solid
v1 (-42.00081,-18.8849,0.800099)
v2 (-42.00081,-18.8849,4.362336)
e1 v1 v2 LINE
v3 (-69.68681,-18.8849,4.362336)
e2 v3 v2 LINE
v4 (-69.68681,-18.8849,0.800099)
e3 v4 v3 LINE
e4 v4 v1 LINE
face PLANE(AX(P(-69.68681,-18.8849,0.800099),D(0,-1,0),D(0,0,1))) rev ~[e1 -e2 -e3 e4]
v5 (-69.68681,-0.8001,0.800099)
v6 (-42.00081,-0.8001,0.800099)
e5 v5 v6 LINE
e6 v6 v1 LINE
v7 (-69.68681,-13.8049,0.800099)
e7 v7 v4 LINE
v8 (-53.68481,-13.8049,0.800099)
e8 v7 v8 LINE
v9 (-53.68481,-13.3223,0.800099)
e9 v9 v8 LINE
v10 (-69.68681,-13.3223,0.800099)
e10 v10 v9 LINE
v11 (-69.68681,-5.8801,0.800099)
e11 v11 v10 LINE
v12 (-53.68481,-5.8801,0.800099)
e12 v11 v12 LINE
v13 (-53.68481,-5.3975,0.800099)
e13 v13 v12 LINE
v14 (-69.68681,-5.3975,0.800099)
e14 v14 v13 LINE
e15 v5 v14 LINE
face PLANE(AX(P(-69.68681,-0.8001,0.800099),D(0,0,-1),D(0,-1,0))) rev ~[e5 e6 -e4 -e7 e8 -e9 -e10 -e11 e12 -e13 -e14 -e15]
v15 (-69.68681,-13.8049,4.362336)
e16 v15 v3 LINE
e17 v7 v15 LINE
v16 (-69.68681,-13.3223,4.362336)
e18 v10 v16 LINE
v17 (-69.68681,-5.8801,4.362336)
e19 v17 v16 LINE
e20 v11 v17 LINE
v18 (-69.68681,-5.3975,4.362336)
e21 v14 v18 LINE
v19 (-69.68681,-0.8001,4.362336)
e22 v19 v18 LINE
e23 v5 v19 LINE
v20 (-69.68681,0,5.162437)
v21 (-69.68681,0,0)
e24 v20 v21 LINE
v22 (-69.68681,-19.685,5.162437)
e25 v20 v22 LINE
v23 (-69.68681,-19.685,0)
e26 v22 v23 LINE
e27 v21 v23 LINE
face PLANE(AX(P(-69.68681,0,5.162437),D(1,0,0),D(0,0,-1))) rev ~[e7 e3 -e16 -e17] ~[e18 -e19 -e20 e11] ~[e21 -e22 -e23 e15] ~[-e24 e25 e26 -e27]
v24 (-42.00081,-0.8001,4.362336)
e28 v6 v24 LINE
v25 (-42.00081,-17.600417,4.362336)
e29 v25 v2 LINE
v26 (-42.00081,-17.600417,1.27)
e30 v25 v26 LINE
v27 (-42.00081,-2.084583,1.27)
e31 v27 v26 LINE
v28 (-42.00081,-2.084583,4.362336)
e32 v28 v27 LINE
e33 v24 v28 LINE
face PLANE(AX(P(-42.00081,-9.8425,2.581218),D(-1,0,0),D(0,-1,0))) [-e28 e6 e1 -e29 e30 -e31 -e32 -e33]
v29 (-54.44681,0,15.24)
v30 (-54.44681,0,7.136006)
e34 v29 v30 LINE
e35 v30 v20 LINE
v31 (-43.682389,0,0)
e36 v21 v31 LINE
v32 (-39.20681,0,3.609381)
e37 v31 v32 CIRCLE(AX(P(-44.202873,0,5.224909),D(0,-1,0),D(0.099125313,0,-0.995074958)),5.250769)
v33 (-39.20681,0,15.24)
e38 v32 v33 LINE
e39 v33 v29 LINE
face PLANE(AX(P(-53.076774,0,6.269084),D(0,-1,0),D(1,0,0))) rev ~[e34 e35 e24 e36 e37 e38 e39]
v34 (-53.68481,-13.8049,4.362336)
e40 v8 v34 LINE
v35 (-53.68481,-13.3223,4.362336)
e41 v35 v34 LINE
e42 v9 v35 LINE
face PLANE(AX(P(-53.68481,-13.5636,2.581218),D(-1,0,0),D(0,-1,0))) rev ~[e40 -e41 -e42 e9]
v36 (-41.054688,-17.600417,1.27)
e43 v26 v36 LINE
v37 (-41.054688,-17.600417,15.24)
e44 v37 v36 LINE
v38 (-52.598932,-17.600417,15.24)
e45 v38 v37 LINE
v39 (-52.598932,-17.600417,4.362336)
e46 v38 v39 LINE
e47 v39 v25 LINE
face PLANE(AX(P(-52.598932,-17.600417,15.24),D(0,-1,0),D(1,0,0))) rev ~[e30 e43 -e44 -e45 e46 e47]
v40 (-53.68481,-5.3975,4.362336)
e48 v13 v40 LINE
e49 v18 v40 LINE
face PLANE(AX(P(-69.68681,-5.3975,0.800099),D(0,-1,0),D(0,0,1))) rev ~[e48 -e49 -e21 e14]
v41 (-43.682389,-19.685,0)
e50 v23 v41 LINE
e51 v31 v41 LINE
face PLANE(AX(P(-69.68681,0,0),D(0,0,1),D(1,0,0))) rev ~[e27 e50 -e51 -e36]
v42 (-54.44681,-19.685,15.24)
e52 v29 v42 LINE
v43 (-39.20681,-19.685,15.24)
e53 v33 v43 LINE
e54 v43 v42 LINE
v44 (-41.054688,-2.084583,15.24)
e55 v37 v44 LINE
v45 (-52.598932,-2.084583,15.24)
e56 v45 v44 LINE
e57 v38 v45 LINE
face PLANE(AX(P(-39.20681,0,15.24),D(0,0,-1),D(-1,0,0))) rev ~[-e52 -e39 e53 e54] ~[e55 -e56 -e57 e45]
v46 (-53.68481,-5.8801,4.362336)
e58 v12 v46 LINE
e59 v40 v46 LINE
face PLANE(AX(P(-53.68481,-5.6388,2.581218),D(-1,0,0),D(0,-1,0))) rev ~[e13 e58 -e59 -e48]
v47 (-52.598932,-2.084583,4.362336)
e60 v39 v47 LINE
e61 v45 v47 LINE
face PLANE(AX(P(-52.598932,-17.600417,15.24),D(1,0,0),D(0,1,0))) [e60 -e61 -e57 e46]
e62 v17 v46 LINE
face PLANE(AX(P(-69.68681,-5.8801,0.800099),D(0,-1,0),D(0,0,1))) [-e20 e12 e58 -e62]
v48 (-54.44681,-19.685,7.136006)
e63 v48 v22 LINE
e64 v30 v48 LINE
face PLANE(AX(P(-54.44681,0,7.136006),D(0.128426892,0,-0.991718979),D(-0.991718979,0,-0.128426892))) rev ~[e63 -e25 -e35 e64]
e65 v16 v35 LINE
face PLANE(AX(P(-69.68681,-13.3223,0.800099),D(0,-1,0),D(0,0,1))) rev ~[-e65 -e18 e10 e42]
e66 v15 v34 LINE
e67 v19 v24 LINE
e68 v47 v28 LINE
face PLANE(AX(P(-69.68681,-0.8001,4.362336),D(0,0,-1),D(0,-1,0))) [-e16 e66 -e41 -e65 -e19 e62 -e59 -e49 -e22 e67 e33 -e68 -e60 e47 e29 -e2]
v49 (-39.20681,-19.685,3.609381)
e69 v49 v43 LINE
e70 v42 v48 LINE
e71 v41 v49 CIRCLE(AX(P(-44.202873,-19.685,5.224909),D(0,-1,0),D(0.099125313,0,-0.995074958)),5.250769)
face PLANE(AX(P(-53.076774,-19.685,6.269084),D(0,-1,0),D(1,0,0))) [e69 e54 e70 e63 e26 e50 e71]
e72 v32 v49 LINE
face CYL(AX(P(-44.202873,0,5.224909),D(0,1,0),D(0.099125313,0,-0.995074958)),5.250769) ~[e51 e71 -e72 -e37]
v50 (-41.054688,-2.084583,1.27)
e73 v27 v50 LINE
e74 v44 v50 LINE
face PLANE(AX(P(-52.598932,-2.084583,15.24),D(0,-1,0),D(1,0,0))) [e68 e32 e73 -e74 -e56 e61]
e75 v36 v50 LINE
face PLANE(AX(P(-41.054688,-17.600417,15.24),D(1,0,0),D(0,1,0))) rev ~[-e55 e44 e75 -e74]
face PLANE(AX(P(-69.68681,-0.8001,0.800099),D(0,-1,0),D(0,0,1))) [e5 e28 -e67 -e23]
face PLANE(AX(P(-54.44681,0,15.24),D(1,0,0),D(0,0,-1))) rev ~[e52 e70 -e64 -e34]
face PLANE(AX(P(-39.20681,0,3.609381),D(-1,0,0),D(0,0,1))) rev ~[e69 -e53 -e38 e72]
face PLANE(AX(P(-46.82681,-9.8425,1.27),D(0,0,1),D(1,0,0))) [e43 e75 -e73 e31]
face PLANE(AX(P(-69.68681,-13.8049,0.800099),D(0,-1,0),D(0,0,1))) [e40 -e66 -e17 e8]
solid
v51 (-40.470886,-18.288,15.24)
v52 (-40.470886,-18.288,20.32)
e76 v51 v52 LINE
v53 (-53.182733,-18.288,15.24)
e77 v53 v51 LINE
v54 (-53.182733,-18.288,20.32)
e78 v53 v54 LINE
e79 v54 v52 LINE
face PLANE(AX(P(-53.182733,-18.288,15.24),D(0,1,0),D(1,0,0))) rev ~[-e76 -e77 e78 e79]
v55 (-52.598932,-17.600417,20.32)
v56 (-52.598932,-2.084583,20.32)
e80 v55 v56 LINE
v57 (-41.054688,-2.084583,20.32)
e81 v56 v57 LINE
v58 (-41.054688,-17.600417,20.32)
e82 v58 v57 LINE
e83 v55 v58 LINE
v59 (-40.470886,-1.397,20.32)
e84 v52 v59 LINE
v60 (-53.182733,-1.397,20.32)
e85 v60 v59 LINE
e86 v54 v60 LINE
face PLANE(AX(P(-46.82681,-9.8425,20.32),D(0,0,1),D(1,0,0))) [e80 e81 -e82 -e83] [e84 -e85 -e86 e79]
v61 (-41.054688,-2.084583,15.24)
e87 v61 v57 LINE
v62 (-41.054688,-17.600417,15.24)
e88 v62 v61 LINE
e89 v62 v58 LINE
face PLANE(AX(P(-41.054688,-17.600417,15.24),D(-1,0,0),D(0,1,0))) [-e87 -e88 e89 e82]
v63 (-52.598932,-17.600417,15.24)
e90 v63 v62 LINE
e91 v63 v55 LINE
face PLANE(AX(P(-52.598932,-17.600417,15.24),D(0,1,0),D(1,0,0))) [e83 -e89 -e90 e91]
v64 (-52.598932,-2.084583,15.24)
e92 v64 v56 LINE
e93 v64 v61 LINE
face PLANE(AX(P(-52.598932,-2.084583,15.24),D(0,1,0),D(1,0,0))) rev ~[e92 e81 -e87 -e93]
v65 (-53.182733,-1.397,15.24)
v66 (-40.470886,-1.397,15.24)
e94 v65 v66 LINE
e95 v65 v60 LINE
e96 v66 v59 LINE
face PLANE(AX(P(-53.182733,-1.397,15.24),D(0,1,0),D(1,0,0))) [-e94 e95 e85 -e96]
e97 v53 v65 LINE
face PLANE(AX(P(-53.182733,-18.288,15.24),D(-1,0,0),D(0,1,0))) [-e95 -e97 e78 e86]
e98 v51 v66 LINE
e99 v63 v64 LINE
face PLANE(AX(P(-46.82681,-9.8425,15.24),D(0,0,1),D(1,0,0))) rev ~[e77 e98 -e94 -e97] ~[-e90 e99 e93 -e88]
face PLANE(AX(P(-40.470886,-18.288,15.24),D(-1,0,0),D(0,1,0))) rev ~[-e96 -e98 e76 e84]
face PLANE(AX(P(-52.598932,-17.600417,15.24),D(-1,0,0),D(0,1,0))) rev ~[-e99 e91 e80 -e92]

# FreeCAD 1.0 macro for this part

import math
import FreeCAD as App
import Part
import Sketcher
Q = App.Units.Quantity


def add_polygon(sketch, points):
    """Adds a closed chain of lines whose ends are joined by coincident constraints."""
    first, n = sketch.GeometryCount, len(points)
    for a, b in zip(points, points[1:] + points[:1]):
        sketch.addGeometry(Part.LineSegment(App.Vector(*a, 0), App.Vector(*b, 0)), False)
    for i in range(n):
        sketch.addConstraint(Sketcher.Constraint("Coincident", first + i, 2, first + (i + 1) % n, 1))

doc = App.newDocument("Part")
params = doc.addObject("Spreadsheet::Sheet", "Params")
for row, (alias, value) in enumerate([
    ("sketch1_width", "0.6 in"),
    ("pad1_length", "0.775 in"),
    ("pocket1_length", "0.55 in"),
    ("sketch3_width", "0.712 in"),
    ("pocket2_length", "1.09 in"),
    ("sketch4_width", "0.019 in"),
    ("pad2_length", "0.63 in"),
    ("sketch5_height", "0.665 in"),
    ("pad3_length", "0.2 in"),
], start=1):
    params.set(f"A{row}", alias)
    params.set(f"B{row}", "=" + value)
    params.setAlias(f"B{row}", alias)

body = doc.addObject("PartDesign::Body", "Body")

sketch1 = doc.addObject("Sketcher::SketchObject", "Sketch")
body.addObject(sketch1)
sketch1.AttachmentSupport = (doc.XZ_Plane, [""])
sketch1.MapMode = "FlatFace"
sketch1.addGeometry([
    Part.LineSegment(App.Vector(-69.68681, 5.162437, 0), App.Vector(-69.68681, 0, 0)),
    Part.LineSegment(App.Vector(-69.68681, 0, 0), App.Vector(-43.682389, 0, 0)),
    Part.ArcOfCircle(Part.Circle(App.Vector(-44.202873, 5.224909, 0), App.Vector(0, 0, 1), 5.250769), math.radians(-84.311196), math.radians(-17.919143)),
    Part.LineSegment(App.Vector(-39.20681, 3.609381, 0), App.Vector(-39.20681, 15.24, 0)),
    Part.LineSegment(App.Vector(-39.20681, 15.24, 0), App.Vector(-54.44681, 15.24, 0)),
    Part.LineSegment(App.Vector(-54.44681, 15.24, 0), App.Vector(-54.44681, 7.136006, 0)),
    Part.LineSegment(App.Vector(-54.44681, 7.136006, 0), App.Vector(-69.68681, 5.162437, 0)),
], False)
sketch1.addConstraint([
    Sketcher.Constraint("Coincident", 0, 2, 1, 1),
    Sketcher.Constraint("Coincident", 1, 2, 2, 1),
    Sketcher.Constraint("Coincident", 2, 2, 3, 1),
    Sketcher.Constraint("Coincident", 3, 2, 4, 1),
    Sketcher.Constraint("Coincident", 4, 2, 5, 1),
    Sketcher.Constraint("Coincident", 5, 2, 6, 1),
    Sketcher.Constraint("Coincident", 6, 2, 0, 1),
    Sketcher.Constraint("Vertical", 0),
    Sketcher.Constraint("Horizontal", 1),
    Sketcher.Constraint("Vertical", 3),
    Sketcher.Constraint("Horizontal", 4),
    Sketcher.Constraint("Vertical", 5),
    Sketcher.Constraint("PointOnObject", 0, 2, -1),
    Sketcher.Constraint("DistanceX", 4, 2, 4, 1, Q("0.6 in")),
    Sketcher.Constraint("DistanceY", -1, 1, 3, 2, Q("0.6 in")),
    Sketcher.Constraint("DistanceX", 0, 2, 2, 2, Q("1.2 in")),
    Sketcher.Constraint("Radius", 2, 5.250769),
    Sketcher.Constraint("DistanceX", 1, 1, 1, 2, 26.004421),
    Sketcher.Constraint("DistanceY", 3, 1, 3, 2, 11.630619),
    Sketcher.Constraint("DistanceY", 0, 2, 0, 1, 5.162437),
    Sketcher.Constraint("DistanceY", 5, 2, 5, 1, 8.103994),
    Sketcher.Constraint("DistanceX", 0, 2, -1, 1, 69.68681),
])
sketch1.setExpression("Constraints[13]", "Params.sketch1_width")
pad1 = doc.addObject("PartDesign::Pad", "Pad")
body.addObject(pad1)
pad1.Profile = sketch1
pad1.setExpression("Length", "Params.pad1_length")

sketch2 = doc.addObject("Sketcher::SketchObject", "Sketch001")
body.addObject(sketch2)
sketch2.AttachmentSupport = (doc.XY_Plane, [""])
sketch2.MapMode = "FlatFace"
sketch2.AttachmentOffset = App.Placement(App.Vector(0, 0, 0.6 * 25.4), App.Rotation())
add_polygon(sketch2, [(-52.598932, -2.084583), (-52.598932, -17.600417), (-41.054688, -17.600417), (-41.054688, -2.084583)])
sketch2.addConstraint([
    Sketcher.Constraint("Vertical", 0),
    Sketcher.Constraint("Horizontal", 1),
    Sketcher.Constraint("Vertical", 2),
    Sketcher.Constraint("Horizontal", 3),
    Sketcher.Constraint("DistanceX", 1, 1, 1, 2, 11.544244),
    Sketcher.Constraint("DistanceY", 0, 2, 0, 1, 15.515834),
    Sketcher.Constraint("DistanceX", 0, 2, -1, 1, 52.598932),
    Sketcher.Constraint("DistanceY", 0, 2, -1, 1, 17.600417),
])
pocket1 = doc.addObject("PartDesign::Pocket", "Pocket")
body.addObject(pocket1)
pocket1.Profile = sketch2
pocket1.setExpression("Length", "Params.pocket1_length")

sketch3 = doc.addObject("Sketcher::SketchObject", "Sketch002")
body.addObject(sketch3)
sketch3.AttachmentSupport = (doc.YZ_Plane, [""])
sketch3.MapMode = "FlatFace"
sketch3.AttachmentOffset = App.Placement(App.Vector(0, 0, -69.68681), App.Rotation())
add_polygon(sketch3, [(-0.8001, 4.362336), (-0.8001, 0.800099), (-18.8849, 0.800099), (-18.8849, 4.362336)])
sketch3.addConstraint([
    Sketcher.Constraint("Vertical", 0),
    Sketcher.Constraint("Horizontal", 1),
    Sketcher.Constraint("Vertical", 2),
    Sketcher.Constraint("Horizontal", 3),
    Sketcher.Constraint("DistanceX", 1, 2, 1, 1, Q("0.712 in")),
    Sketcher.Constraint("DistanceX", 0, 2, -1, 1, Q("0.0315 in")),
    Sketcher.Constraint("DistanceY", -1, 1, 0, 2, Q("0.0315 in")),
    Sketcher.Constraint("DistanceY", 0, 2, 0, 1, 3.562237),
])
sketch3.setExpression("Constraints[8]", "Params.sketch3_width")
pocket2 = doc.addObject("PartDesign::Pocket", "Pocket001")
body.addObject(pocket2)
pocket2.Profile = sketch3
pocket2.setExpression("Length", "Params.pocket2_length")
pocket2.Reversed = True

sketch4 = doc.addObject("Sketcher::SketchObject", "Sketch003")
body.addObject(sketch4)
sketch4.AttachmentSupport = (doc.YZ_Plane, [""])
sketch4.MapMode = "FlatFace"
sketch4.AttachmentOffset = App.Placement(App.Vector(0, 0, -69.68681), App.Rotation())
add_polygon(sketch4, [(-5.3975, 4.362336), (-5.3975, 0.800099), (-5.8801, 0.800099), (-5.8801, 4.362336)])
add_polygon(sketch4, [(-13.3223, 4.362336), (-13.3223, 0.800099), (-13.8049, 0.800099), (-13.8049, 4.362336)])
sketch4.addConstraint([
    Sketcher.Constraint("Vertical", 0),
    Sketcher.Constraint("Horizontal", 1),
    Sketcher.Constraint("Vertical", 2),
    Sketcher.Constraint("Horizontal", 3),
    Sketcher.Constraint("Vertical", 4),
    Sketcher.Constraint("Horizontal", 5),
    Sketcher.Constraint("Vertical", 6),
    Sketcher.Constraint("Horizontal", 7),
    Sketcher.Constraint("Horizontal", 1, 2, 4, 2),
    Sketcher.Constraint("Horizontal", 3, 2, 6, 2),
    Sketcher.Constraint("Equal", 3, 5),
    Sketcher.Constraint("DistanceX", 1, 2, 1, 1, Q("0.019 in")),
    Sketcher.Constraint("DistanceX", 4, 2, 1, 2, Q("0.293 in")),
    Sketcher.Constraint("DistanceX", 0, 2, -1, 1, Q("0.2125 in")),
    Sketcher.Constraint("DistanceY", -1, 1, 0, 2, Q("0.0315 in")),
    Sketcher.Constraint("DistanceY", 0, 2, 0, 1, 3.562237),
])
sketch4.setExpression("Constraints[19]", "Params.sketch4_width")
pad2 = doc.addObject("PartDesign::Pad", "Pad001")
body.addObject(pad2)
pad2.Profile = sketch4
pad2.setExpression("Length", "Params.pad2_length")
body2 = doc.addObject("PartDesign::Body", "Body001")

sketch5 = doc.addObject("Sketcher::SketchObject", "Sketch004")
body2.addObject(sketch5)
sketch5.AttachmentSupport = (doc.getObject("XY_Plane001"), [""])
sketch5.MapMode = "FlatFace"
sketch5.AttachmentOffset = App.Placement(App.Vector(0, 0, 0.6 * 25.4), App.Rotation())
add_polygon(sketch5, [(-53.182733, -1.397), (-53.182733, -18.288), (-40.470886, -18.288), (-40.470886, -1.397)])
add_polygon(sketch5, [(-41.054688, -17.600417), (-52.598932, -17.600417), (-52.598932, -2.084583), (-41.054688, -2.084583)])
sketch5.addConstraint([
    Sketcher.Constraint("Vertical", 0),
    Sketcher.Constraint("Horizontal", 1),
    Sketcher.Constraint("Vertical", 2),
    Sketcher.Constraint("Horizontal", 3),
    Sketcher.Constraint("Horizontal", 4),
    Sketcher.Constraint("Vertical", 5),
    Sketcher.Constraint("Horizontal", 6),
    Sketcher.Constraint("Vertical", 7),
    Sketcher.Constraint("DistanceY", 0, 2, 0, 1, Q("0.665 in")),
    Sketcher.Constraint("DistanceY", 0, 2, -1, 1, Q("0.72 in")),
    Sketcher.Constraint("DistanceX", 0, 2, 4, 2, 0.583801),
    Sketcher.Constraint("DistanceX", 6, 2, 2, 2, 0.583801),
    Sketcher.Constraint("DistanceX", 1, 1, 1, 2, 12.711847),
    Sketcher.Constraint("DistanceY", 5, 1, 5, 2, 15.515834),
    Sketcher.Constraint("DistanceX", 4, 2, -1, 1, 52.598932),
    Sketcher.Constraint("DistanceY", 4, 2, -1, 1, 17.600417),
])
sketch5.setExpression("Constraints[16]", "Params.sketch5_height")
pad3 = doc.addObject("PartDesign::Pad", "Pad002")
body2.addObject(pad3)
pad3.Profile = sketch5
pad3.setExpression("Length", "Params.pad3_length")

doc.recompute()
